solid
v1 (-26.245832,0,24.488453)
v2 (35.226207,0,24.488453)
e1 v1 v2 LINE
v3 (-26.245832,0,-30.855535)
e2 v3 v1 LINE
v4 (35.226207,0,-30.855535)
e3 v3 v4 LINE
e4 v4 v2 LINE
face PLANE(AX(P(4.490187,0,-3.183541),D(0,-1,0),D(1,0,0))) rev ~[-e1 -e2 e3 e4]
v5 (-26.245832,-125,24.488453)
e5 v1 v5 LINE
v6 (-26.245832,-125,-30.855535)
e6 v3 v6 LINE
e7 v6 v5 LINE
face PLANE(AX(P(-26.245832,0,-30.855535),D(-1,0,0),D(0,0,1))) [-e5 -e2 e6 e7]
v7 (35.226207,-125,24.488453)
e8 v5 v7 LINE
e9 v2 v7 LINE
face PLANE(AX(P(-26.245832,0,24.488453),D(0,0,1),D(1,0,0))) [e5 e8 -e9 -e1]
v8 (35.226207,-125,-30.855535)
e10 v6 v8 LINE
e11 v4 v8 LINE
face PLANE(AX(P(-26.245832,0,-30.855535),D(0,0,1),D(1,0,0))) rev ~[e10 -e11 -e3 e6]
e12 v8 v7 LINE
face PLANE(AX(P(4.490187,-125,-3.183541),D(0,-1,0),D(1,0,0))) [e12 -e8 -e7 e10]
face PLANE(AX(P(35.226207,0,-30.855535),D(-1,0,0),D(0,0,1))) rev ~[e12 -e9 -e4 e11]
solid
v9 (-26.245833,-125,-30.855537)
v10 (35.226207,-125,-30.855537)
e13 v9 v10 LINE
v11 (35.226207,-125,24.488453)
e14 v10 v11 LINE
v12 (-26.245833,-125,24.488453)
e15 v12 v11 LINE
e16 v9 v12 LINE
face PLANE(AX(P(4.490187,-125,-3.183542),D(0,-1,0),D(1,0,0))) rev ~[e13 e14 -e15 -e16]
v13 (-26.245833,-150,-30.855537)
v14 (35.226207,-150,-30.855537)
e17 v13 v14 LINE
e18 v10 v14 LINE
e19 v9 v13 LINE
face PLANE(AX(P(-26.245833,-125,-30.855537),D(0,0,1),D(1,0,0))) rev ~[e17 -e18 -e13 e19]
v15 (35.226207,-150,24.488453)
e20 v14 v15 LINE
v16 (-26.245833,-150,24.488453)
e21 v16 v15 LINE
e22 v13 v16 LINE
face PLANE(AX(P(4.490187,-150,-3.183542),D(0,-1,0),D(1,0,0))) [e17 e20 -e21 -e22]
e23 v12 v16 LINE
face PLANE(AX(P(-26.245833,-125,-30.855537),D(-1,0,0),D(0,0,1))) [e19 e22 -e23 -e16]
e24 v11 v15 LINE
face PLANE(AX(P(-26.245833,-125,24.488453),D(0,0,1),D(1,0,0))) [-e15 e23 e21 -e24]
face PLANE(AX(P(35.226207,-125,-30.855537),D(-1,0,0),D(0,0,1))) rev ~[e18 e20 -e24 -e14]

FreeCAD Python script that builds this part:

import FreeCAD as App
import Part
import Sketcher


def add_polygon(sketch, points):
    """Adds a closed chain of lines whose ends are joined by coincident constraints."""
    first, n = sketch.GeometryCount, len(points)
    for a, b in zip(points, points[1:] + points[:1]):
        sketch.addGeometry(Part.LineSegment(App.Vector(*a, 0), App.Vector(*b, 0)), False)
    for i in range(n):
        sketch.addConstraint(Sketcher.Constraint("Coincident", first + i, 2, first + (i + 1) % n, 1))

doc = App.newDocument("Part")
params = doc.addObject("Spreadsheet::Sheet", "Params")
for row, (alias, value) in enumerate([
    ("pad1_length", "125 mm"),
    ("pad2_length", "25 mm"),
], start=1):
    params.set(f"A{row}", alias)
    params.set(f"B{row}", "=" + value)
    params.setAlias(f"B{row}", alias)

body = doc.addObject("PartDesign::Body", "Body")

# Sketch on XZ plane
sketch1 = body.newObject("Sketcher::SketchObject", "Sketch")
sketch1.AttachmentSupport = (doc.getObject("XZ_Plane"), [""])
sketch1.MapMode = "FlatFace"
add_polygon(sketch1, [(-26, 24), (-26, -31), (35, -31), (35, 24)])  # lines 0-3
sketch1.addConstraint([
    Sketcher.Constraint("Vertical", 0),
    Sketcher.Constraint("Horizontal", 1),
    Sketcher.Constraint("Vertical", 2),
    Sketcher.Constraint("Horizontal", 3),
    Sketcher.Constraint("DistanceX", 1, 1, 1, 2, 61.472039),
    Sketcher.Constraint("DistanceY", 0, 2, 0, 1, 55.343989),
    Sketcher.Constraint("DistanceX", 0, 2, -1, 1, 26.245832),
    Sketcher.Constraint("DistanceY", 0, 2, -1, 1, 30.855535),
])
pad1 = body.newObject("PartDesign::Pad", "Pad")
pad1.Profile = sketch1
pad1.setExpression("Length", "Params.pad1_length")
body2 = doc.addObject("PartDesign::Body", "Body001")

# Sketch on XZ plane
sketch2 = body2.newObject("Sketcher::SketchObject", "Sketch001")
sketch2.AttachmentSupport = (doc.getObject("XZ_Plane001"), [""])
sketch2.MapMode = "FlatFace"
sketch2.AttachmentOffset = App.Placement(App.Vector(0, 0, 125), App.Rotation())
add_polygon(sketch2, [(-26, 24), (-26, -31), (35, -31), (35, 24)])  # lines 0-3
sketch2.addConstraint([
    Sketcher.Constraint("Vertical", 0),
    Sketcher.Constraint("Horizontal", 1),
    Sketcher.Constraint("Vertical", 2),
    Sketcher.Constraint("Horizontal", 3),
    Sketcher.Constraint("DistanceX", 1, 1, 1, 2, 61.47204),
    Sketcher.Constraint("DistanceY", 0, 2, 0, 1, 55.34399),
    Sketcher.Constraint("DistanceX", 0, 2, -1, 1, 26.245833),
    Sketcher.Constraint("DistanceY", 0, 2, -1, 1, 30.855537),
])
pad2 = body2.newObject("PartDesign::Pad", "Pad001")
pad2.Profile = sketch2
pad2.setExpression("Length", "Params.pad2_length")

doc.recompute()
